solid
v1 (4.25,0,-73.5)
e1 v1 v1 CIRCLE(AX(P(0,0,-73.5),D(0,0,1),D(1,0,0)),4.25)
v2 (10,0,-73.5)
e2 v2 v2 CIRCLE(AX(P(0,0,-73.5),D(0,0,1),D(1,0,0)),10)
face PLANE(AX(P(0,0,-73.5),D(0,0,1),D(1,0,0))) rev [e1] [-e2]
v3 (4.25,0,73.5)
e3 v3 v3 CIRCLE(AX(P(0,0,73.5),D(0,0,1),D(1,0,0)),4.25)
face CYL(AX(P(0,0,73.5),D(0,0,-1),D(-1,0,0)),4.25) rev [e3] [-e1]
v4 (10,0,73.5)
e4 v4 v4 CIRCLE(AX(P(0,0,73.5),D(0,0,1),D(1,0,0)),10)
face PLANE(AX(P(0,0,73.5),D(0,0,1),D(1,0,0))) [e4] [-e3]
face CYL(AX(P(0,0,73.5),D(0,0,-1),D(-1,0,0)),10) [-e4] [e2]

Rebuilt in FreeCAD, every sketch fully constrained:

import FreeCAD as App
import Part
import Sketcher

V = App.Vector
Q = App.Units.Quantity

doc = App.newDocument("Part")
params = doc.addObject("Spreadsheet::Sheet", "Params")
for row, (alias, value) in enumerate([
    ("sketch1_diameter", "20 mm"),
    ("sketch1_diameter2", "8.5 mm"),
    ("pad1_length", "147 mm"),
], start=1):
    params.set(f"A{row}", alias)
    params.set(f"B{row}", "=" + value)
    params.setAlias(f"B{row}", alias)

body = doc.addObject("PartDesign::Body", "Body")

# Sketch on XY plane
sketch1 = body.newObject("Sketcher::SketchObject", "Sketch")
sketch1.AttachmentSupport = (doc.getObject("XY_Plane"), [""])
sketch1.MapMode = "FlatFace"
sketch1.addGeometry([
    Part.Circle(V(0, 0, 0), V(0, 0, 1), 10),
    Part.Circle(V(0, 0, 0), V(0, 0, 1), 4.2),
], False)
sketch1.addConstraint([
    Sketcher.Constraint("Coincident", 0, 3, -1, 1),
    Sketcher.Constraint("Coincident", 1, 3, -1, 1),
    Sketcher.Constraint("Diameter", 0, Q("20 mm")),
    Sketcher.Constraint("Diameter", 1, Q("8.5 mm")),
])
sketch1.setExpression("Constraints[2]", "Params.sketch1_diameter")
sketch1.setExpression("Constraints[3]", "Params.sketch1_diameter2")
pad1 = body.newObject("PartDesign::Pad", "Pad")
pad1.Profile = sketch1
pad1.setExpression("Length", "Params.pad1_length")
pad1.Midplane = True

doc.recompute()
